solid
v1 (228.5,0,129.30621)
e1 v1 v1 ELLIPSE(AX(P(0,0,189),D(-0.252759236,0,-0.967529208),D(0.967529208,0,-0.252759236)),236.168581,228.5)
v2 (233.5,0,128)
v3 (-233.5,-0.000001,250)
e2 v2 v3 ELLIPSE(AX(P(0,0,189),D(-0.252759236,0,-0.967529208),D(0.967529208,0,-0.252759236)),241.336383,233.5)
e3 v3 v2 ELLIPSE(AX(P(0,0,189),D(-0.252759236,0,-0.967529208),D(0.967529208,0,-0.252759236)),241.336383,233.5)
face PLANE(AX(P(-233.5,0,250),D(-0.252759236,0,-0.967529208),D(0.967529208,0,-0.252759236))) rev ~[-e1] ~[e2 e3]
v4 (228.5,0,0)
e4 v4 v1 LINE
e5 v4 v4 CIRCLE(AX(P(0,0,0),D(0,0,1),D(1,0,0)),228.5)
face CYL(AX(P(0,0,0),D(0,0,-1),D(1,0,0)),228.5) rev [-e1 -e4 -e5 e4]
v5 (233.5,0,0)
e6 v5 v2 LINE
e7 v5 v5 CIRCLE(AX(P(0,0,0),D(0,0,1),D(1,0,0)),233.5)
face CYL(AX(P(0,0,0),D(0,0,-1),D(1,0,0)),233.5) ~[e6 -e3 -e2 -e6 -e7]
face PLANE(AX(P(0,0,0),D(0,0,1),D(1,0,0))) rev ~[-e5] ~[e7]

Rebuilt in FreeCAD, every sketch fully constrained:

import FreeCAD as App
import Part
import Sketcher
from FreeCAD import Vector


def add_polygon(sketch, points):
    """Adds a closed chain of lines whose ends are joined by coincident constraints."""
    first, n = sketch.GeometryCount, len(points)
    for a, b in zip(points, points[1:] + points[:1]):
        sketch.addGeometry(Part.LineSegment(App.Vector(*a, 0), App.Vector(*b, 0)), False)
    for i in range(n):
        sketch.addConstraint(Sketcher.Constraint("Coincident", first + i, 2, first + (i + 1) % n, 1))

doc = App.newDocument("Part")
body = doc.addObject("PartDesign::Body", "Body")

# Sketch on XY plane
sketch1 = body.newObject("Sketcher::SketchObject", "Sketch")
sketch1.AttachmentSupport = (doc.getObject("XY_Plane"), [""])
sketch1.MapMode = "FlatFace"
sketch1.addGeometry([
    Part.Circle(Vector(0, 0, 0), Vector(0, 0, 1), 233.5),
    Part.Circle(Vector(0, 0, 0), Vector(0, 0, 1), 228.5),
], False)
sketch1.addConstraint([
    Sketcher.Constraint("Coincident", 0, 3, -1, 1),
    Sketcher.Constraint("Coincident", 1, 3, -1, 1),
    Sketcher.Constraint("Diameter", 0, 467.0),
    Sketcher.Constraint("Diameter", 1, 457.0),
])
pad1 = body.newObject("PartDesign::Pad", "Pad")
pad1.Profile = sketch1
pad1.Length = 250

# Sketch on XZ plane
sketch2 = body.newObject("Sketcher::SketchObject", "Sketch001")
sketch2.AttachmentSupport = (doc.getObject("XZ_Plane"), [""])
sketch2.MapMode = "FlatFace"
add_polygon(sketch2, [(233.5, 128), (233.5, 250), (-233.5, 250)])  # lines 0-2
sketch2.addConstraint([
    Sketcher.Constraint("Vertical", 0),
    Sketcher.Constraint("Horizontal", 1),
    Sketcher.Constraint("DistanceX", 1, 2, 1, 1, 467.0),
    Sketcher.Constraint("DistanceY", 0, 1, 0, 2, 122.0),
    Sketcher.Constraint("DistanceY", -1, 1, 0, 2, 250.0),
    Sketcher.Constraint("DistanceX", -1, 1, 0, 2, 233.5),
])
pocket1 = body.newObject("PartDesign::Pocket", "Pocket")
pocket1.Profile = sketch2
pocket1.Length = 475
pocket1.Midplane = True

doc.recompute()
